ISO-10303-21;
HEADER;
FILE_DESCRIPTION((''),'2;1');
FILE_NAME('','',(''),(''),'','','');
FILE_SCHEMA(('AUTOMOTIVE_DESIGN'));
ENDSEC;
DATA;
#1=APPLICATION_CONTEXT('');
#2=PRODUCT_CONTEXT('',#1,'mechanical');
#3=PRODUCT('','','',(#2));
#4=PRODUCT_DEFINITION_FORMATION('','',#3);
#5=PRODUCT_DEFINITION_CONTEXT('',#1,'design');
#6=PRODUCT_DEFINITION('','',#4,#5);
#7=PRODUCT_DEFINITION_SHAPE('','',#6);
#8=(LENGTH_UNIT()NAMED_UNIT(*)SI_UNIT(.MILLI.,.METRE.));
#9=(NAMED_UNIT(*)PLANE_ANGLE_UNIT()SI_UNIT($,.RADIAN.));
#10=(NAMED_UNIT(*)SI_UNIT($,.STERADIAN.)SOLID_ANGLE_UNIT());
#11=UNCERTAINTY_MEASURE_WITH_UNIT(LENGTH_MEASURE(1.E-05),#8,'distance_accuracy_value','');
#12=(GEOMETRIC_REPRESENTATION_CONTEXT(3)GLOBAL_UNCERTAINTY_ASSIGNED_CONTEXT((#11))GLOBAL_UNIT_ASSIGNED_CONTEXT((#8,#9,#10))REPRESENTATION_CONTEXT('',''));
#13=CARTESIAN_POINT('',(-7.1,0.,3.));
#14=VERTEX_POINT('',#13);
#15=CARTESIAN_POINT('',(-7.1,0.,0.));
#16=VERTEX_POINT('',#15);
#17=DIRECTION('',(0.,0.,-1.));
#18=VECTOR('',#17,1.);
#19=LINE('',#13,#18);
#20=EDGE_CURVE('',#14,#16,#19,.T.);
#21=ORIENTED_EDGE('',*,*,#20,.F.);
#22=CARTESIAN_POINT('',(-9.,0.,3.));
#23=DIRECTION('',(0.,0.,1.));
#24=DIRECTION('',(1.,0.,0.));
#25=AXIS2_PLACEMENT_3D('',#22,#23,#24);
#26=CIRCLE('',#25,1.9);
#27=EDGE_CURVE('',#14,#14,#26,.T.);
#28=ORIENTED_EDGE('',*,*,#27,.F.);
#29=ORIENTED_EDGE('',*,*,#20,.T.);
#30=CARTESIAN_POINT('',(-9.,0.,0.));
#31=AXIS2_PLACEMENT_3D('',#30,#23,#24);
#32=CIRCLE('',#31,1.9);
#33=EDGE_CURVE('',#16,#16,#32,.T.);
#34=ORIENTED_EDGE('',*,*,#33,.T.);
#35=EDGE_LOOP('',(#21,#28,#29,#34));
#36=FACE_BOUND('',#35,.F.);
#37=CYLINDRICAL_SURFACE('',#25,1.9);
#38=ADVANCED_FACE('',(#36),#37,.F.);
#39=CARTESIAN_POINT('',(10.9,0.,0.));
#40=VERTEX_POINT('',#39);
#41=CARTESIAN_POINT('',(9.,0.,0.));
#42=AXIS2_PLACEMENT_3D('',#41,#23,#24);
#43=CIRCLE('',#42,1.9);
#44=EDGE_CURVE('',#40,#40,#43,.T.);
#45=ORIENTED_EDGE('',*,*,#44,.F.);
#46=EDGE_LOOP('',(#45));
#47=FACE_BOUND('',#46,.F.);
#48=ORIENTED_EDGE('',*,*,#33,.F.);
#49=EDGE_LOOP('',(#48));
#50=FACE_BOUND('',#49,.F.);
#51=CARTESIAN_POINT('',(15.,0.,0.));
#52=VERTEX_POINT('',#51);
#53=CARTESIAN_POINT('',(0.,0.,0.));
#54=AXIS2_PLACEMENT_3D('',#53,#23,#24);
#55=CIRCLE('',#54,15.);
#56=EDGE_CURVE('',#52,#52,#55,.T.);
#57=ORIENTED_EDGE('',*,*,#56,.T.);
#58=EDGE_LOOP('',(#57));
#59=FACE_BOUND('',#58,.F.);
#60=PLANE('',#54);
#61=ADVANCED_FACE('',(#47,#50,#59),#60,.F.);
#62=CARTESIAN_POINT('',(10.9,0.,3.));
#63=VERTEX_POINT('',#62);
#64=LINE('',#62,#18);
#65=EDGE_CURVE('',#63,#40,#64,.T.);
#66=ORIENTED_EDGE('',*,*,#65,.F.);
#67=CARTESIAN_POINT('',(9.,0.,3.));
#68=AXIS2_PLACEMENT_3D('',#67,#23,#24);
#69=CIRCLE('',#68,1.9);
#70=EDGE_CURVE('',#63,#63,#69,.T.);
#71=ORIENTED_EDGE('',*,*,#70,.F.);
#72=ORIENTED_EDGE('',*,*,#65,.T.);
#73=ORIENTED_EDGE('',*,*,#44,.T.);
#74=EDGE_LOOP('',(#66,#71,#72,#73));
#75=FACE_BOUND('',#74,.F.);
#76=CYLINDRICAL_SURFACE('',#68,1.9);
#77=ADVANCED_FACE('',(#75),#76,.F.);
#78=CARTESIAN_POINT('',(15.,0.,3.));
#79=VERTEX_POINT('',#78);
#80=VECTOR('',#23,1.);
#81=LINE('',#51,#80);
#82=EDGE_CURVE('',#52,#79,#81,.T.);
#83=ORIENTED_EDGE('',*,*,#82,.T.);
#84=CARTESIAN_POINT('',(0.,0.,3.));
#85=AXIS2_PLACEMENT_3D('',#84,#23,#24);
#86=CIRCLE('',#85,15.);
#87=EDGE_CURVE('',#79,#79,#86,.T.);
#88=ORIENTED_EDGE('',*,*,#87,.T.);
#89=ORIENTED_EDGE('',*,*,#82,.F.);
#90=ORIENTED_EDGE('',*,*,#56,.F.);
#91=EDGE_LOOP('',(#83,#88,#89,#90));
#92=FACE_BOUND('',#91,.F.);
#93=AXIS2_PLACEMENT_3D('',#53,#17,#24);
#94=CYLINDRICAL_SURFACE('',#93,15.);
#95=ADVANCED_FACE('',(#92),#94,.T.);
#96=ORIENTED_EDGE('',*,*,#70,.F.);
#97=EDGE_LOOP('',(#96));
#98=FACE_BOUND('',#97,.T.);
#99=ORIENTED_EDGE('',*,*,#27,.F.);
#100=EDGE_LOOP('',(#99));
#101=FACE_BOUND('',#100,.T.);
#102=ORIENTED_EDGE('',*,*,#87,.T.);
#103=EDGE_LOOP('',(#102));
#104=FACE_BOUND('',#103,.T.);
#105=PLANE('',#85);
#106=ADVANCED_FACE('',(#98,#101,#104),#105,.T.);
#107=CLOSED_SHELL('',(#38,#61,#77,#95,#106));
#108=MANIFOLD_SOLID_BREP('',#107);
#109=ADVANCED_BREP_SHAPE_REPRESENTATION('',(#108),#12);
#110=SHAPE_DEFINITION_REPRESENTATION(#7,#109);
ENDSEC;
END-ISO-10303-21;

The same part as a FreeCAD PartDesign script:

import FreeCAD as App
import Part
import Sketcher

doc = App.newDocument("Part")
body = doc.addObject("PartDesign::Body", "Body")

sketch1 = body.newObject("Sketcher::SketchObject", "Sketch")
sketch1.AttachmentSupport = (doc.getObject("XY_Plane"), [""])
sketch1.MapMode = "FlatFace"
sketch1.addGeometry(Part.Circle(App.Vector(0, 0, 0), App.Vector(0, 0, 1), 15), False)
sketch1.addConstraint(Sketcher.Constraint("Coincident", 0, 3, -1, 1))
sketch1.addConstraint(Sketcher.Constraint("Diameter", 0, 30.0))
pad1 = body.newObject("PartDesign::Pad", "Pad")
pad1.Profile = sketch1
pad1.Length = 3

sketch2 = body.newObject("Sketcher::SketchObject", "Sketch001")
sketch2.AttachmentSupport = (doc.getObject("XY_Plane"), [""])
sketch2.MapMode = "FlatFace"
sketch2.AttachmentOffset = App.Placement(App.Vector(0, 0, 3), App.Rotation())
sketch2.addGeometry(Part.Circle(App.Vector(9, 0, 0), App.Vector(0, 0, 1), 1.9), False)
sketch2.addGeometry(Part.Circle(App.Vector(-9, 0, 0), App.Vector(0, 0, 1), 1.9), False)
sketch2.addConstraint(Sketcher.Constraint("Equal", 0, 1))
sketch2.addConstraint(Sketcher.Constraint("Symmetric", 0, 3, 1, 3, -1, 1))
sketch2.addConstraint(Sketcher.Constraint("PointOnObject", 0, 3, -1))
sketch2.addConstraint(Sketcher.Constraint("Diameter", 0, 3.8))
sketch2.addConstraint(Sketcher.Constraint("DistanceX", -1, 1, 0, 3, 9.0))
pocket1 = body.newObject("PartDesign::Pocket", "Pocket")
pocket1.Profile = sketch2
pocket1.Length = 25

doc.recompute()
